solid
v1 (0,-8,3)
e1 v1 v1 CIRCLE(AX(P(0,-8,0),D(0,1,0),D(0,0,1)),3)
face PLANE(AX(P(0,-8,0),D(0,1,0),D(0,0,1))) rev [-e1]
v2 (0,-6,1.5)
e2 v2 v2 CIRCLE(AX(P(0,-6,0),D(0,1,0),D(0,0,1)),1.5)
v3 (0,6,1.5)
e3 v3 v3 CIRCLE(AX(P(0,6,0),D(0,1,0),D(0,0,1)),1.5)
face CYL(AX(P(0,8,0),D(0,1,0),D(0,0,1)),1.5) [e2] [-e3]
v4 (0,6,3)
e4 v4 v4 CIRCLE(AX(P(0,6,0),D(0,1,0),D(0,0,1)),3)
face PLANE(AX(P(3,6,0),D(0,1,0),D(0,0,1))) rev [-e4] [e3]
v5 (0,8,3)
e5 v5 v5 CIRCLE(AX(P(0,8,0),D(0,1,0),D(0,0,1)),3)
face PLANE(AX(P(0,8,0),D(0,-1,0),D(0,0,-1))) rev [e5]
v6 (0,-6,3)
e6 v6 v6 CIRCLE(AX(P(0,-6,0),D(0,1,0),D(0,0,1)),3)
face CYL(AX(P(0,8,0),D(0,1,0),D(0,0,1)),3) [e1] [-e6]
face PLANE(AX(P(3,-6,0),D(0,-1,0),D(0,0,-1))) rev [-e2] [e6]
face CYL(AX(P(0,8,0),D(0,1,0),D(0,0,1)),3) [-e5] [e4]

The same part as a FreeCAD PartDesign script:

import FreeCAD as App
import Part
import Sketcher

V = App.Vector
Q = App.Units.Quantity


def add_polygon(sketch, points):
    """Adds a closed chain of lines whose ends are joined by coincident constraints."""
    first, n = sketch.GeometryCount, len(points)
    for a, b in zip(points, points[1:] + points[:1]):
        sketch.addGeometry(Part.LineSegment(App.Vector(*a, 0), App.Vector(*b, 0)), False)
    for i in range(n):
        sketch.addConstraint(Sketcher.Constraint("Coincident", first + i, 2, first + (i + 1) % n, 1))

doc = App.newDocument("Part")
params = doc.addObject("Spreadsheet::Sheet", "Params")
for row, (alias, value) in enumerate([
    ("sketch1_width", "3 mm"),
    ("sketch1_height", "16 mm"),
    ("sketch1_height2", "2 mm"),
    ("sketch1_width2", "1.5 mm"),
    ("revolution_angle", "360 deg"),
], start=1):
    params.set(f"A{row}", alias)
    params.set(f"B{row}", "=" + value)
    params.setAlias(f"B{row}", alias)

body = doc.addObject("PartDesign::Body", "Body")

sketch1 = body.newObject("Sketcher::SketchObject", "Sketch")
sketch1.AttachmentSupport = (doc.getObject("XY_Plane"), [""])
sketch1.MapMode = "FlatFace"
add_polygon(sketch1, [(3, 8), (0, 8), (0, -8), (3, -8), (3, -6), (1.5, -6), (1.5, 6), (3, 6)])
sketch1.addConstraint([
    Sketcher.Constraint("Horizontal", 0),
    Sketcher.Constraint("Vertical", 1),
    Sketcher.Constraint("Horizontal", 2),
    Sketcher.Constraint("Vertical", 3),
    Sketcher.Constraint("Horizontal", 4),
    Sketcher.Constraint("Vertical", 5),
    Sketcher.Constraint("Horizontal", 6),
    Sketcher.Constraint("Vertical", 7),
    Sketcher.Constraint("Symmetric", 0, 2, 1, 2, -1, 1),
    Sketcher.Constraint("Symmetric", 3, 2, 6, 2, -1),
    Sketcher.Constraint("DistanceX", 0, 2, 0, 1, Q("3 mm")),
    Sketcher.Constraint("DistanceY", 1, 2, 1, 1, Q("16 mm")),
    Sketcher.Constraint("DistanceY", 3, 1, 3, 2, Q("2 mm")),
    Sketcher.Constraint("DistanceX", 4, 2, 4, 1, Q("1.5 mm")),
])
sketch1.setExpression("Constraints[18]", "Params.sketch1_width")
sketch1.setExpression("Constraints[19]", "Params.sketch1_height")
sketch1.setExpression("Constraints[20]", "Params.sketch1_height2")
sketch1.setExpression("Constraints[21]", "Params.sketch1_width2")
revolution = body.newObject("PartDesign::Revolution", "Revolution")
revolution.Profile = sketch1
revolution.ReferenceAxis = (sketch1, ["V_Axis"])
revolution.setExpression("Angle", "Params.revolution_angle")

doc.recompute()
